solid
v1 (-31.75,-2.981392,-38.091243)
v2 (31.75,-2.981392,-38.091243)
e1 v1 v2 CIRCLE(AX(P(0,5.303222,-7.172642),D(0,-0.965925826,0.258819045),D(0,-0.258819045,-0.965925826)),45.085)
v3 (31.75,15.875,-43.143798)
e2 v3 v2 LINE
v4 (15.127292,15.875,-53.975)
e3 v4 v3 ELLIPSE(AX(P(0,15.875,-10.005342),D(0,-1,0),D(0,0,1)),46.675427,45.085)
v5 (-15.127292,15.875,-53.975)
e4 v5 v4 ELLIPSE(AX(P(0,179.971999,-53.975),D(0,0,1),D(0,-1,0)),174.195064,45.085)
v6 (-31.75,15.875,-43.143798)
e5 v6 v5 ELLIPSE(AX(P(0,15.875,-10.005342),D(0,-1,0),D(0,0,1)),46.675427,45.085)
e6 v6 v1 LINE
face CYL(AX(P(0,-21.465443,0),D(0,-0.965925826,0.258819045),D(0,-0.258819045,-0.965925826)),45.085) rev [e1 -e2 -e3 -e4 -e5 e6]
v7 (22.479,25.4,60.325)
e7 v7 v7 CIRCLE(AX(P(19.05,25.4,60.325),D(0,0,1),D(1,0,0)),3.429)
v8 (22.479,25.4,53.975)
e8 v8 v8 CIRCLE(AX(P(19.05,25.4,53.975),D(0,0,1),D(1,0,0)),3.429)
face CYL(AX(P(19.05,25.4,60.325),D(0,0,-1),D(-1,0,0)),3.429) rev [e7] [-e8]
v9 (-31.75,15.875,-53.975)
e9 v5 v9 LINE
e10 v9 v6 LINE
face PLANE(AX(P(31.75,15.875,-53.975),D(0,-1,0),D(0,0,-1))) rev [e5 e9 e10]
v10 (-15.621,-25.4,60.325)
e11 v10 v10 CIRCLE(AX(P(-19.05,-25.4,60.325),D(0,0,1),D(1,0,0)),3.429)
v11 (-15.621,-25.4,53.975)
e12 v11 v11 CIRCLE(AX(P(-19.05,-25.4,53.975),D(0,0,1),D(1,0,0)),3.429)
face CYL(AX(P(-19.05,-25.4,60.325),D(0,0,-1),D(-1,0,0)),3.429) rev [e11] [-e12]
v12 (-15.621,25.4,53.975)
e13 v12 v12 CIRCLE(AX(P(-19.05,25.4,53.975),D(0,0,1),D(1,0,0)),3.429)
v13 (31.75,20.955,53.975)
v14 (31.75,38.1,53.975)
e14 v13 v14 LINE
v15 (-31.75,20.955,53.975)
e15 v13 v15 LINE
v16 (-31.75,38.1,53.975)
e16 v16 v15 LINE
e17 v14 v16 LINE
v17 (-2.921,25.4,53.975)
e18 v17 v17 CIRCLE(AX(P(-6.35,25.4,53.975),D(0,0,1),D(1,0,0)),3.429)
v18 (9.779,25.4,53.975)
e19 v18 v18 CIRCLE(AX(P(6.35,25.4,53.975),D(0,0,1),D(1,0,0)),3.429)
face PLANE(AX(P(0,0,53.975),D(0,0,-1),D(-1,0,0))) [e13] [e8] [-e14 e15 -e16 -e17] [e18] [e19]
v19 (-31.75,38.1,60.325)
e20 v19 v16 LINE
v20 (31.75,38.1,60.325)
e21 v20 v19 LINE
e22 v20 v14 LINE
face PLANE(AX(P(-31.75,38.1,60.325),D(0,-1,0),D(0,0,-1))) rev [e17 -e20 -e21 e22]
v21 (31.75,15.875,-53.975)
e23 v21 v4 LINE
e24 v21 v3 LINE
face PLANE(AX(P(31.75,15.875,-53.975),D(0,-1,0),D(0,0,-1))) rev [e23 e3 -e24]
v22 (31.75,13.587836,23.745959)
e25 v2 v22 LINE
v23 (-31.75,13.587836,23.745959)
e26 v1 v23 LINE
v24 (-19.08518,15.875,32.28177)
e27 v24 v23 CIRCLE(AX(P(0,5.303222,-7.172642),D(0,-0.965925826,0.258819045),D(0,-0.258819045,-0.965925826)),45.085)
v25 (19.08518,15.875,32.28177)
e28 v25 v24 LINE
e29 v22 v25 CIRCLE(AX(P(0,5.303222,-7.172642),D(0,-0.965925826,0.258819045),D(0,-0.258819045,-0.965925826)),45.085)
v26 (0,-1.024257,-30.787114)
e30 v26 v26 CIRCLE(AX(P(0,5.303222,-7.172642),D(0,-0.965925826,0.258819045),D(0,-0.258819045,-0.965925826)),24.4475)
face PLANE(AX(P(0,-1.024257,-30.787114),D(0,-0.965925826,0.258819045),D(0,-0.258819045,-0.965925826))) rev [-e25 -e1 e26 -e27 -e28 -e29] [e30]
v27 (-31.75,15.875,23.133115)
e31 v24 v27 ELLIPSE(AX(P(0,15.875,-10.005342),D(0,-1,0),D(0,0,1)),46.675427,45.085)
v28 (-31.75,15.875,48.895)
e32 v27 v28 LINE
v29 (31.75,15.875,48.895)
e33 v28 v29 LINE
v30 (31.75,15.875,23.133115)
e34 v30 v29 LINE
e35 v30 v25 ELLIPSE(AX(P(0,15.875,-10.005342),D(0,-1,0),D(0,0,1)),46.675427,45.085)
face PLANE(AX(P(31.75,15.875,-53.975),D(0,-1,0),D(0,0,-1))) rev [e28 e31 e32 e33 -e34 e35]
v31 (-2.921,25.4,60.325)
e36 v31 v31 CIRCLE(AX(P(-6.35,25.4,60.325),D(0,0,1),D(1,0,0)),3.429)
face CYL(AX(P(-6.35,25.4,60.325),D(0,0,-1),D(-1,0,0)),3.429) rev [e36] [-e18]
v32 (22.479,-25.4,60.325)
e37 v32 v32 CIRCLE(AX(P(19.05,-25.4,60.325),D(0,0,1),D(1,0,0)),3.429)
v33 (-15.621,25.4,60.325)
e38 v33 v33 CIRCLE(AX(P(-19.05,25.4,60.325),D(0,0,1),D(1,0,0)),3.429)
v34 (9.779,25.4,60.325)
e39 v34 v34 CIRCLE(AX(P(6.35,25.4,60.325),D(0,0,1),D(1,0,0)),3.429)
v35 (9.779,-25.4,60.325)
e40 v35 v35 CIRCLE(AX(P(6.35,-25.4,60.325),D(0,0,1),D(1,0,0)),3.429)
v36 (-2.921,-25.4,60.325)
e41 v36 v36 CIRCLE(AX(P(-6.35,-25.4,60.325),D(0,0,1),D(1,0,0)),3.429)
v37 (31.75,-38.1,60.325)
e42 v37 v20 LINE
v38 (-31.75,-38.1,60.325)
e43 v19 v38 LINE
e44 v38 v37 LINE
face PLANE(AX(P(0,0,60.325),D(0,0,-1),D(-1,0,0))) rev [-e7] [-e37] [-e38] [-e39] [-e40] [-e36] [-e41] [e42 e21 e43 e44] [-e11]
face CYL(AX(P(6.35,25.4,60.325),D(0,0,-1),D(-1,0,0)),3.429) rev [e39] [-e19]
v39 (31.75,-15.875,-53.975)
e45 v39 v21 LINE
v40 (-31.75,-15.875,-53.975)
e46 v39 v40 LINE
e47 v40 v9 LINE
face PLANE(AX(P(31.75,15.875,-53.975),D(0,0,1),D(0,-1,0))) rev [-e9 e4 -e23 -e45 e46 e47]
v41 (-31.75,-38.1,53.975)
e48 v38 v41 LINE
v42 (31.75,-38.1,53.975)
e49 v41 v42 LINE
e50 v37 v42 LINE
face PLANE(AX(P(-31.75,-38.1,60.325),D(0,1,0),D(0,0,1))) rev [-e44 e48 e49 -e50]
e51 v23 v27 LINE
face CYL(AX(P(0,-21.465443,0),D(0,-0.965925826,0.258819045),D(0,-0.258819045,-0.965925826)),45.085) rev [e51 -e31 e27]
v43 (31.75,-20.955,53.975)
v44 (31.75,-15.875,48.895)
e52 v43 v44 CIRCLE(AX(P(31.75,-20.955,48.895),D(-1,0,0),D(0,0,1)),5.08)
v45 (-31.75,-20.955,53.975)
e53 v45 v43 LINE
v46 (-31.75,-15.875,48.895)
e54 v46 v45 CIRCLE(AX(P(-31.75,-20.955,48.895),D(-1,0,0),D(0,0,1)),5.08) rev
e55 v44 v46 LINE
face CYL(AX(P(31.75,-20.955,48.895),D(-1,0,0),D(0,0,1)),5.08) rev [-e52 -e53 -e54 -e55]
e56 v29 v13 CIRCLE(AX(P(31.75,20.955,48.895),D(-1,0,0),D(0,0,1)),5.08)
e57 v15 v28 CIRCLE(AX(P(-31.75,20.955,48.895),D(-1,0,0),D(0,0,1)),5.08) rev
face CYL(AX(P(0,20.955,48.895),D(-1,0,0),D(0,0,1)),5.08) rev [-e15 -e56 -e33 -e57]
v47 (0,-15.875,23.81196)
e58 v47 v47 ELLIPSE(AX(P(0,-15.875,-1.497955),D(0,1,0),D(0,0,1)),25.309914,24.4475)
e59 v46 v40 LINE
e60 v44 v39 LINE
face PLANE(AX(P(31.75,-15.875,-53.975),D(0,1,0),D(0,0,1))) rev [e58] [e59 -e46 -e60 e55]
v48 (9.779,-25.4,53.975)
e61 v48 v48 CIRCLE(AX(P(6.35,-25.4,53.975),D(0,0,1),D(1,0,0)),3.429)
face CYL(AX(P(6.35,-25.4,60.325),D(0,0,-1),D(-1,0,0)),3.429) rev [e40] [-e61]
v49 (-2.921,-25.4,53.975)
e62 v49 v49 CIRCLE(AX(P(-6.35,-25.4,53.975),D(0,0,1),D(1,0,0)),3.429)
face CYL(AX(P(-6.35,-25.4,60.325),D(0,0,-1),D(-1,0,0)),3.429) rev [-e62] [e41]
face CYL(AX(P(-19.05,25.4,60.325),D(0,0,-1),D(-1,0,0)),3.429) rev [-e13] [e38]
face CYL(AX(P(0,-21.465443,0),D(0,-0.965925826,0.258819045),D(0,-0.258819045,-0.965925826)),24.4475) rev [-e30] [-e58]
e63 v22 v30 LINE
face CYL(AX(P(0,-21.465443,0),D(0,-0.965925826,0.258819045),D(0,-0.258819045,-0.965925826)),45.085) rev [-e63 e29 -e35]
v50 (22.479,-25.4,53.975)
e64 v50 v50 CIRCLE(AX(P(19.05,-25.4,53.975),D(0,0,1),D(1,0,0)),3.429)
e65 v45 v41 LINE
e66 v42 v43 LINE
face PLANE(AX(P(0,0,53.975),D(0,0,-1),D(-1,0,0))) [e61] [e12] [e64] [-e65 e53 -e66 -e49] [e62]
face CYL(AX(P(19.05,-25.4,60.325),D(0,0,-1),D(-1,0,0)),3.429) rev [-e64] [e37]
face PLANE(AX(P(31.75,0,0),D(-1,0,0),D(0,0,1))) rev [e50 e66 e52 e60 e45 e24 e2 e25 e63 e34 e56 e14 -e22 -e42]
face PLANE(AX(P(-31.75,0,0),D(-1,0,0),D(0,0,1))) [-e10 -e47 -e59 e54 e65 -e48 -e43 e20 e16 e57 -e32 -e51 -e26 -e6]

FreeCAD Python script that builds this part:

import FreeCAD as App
import Part
import Sketcher
from FreeCAD import Vector
Q = App.Units.Quantity


def edges_at(feature, points):
    """Names of the edges that pass closest to the given points."""
    edges = feature.Shape.Edges
    near = lambda p: min(range(len(edges)), key=lambda i: edges[i].distToShape(Part.Vertex(*p))[0])
    return sorted({f"Edge{near(p) + 1}" for p in points})


def add_polygon(sketch, points):
    """Adds a closed chain of lines whose ends are joined by coincident constraints."""
    first, n = sketch.GeometryCount, len(points)
    for a, b in zip(points, points[1:] + points[:1]):
        sketch.addGeometry(Part.LineSegment(App.Vector(*a, 0), App.Vector(*b, 0)), False)
    for i in range(n):
        sketch.addConstraint(Sketcher.Constraint("Coincident", first + i, 2, first + (i + 1) % n, 1))

doc = App.newDocument("Part")
body = doc.addObject("PartDesign::Body", "Body")

# Sketch on YZ plane
sketch1 = body.newObject("Sketcher::SketchObject", "Sketch")
sketch1.AttachmentSupport = (doc.getObject("YZ_Plane"), [""])
sketch1.MapMode = "FlatFace"
add_polygon(sketch1, [(16, 54), (-16, 54), (-16, -54), (16, -54)])  # lines 0-3
sketch1.addConstraint([
    Sketcher.Constraint("Horizontal", 0),
    Sketcher.Constraint("Vertical", 1),
    Sketcher.Constraint("Horizontal", 2),
    Sketcher.Constraint("Vertical", 3),
    Sketcher.Constraint("Symmetric", 0, 2, 2, 2, -1, 1),
    Sketcher.Constraint("DistanceX", 0, 2, 0, 1, Q("1.25 in")),
    Sketcher.Constraint("DistanceY", 1, 2, 1, 1, Q("4.25 in")),
])
pad1 = body.newObject("PartDesign::Pad", "Pad")
pad1.Profile = sketch1
pad1.Length = Q("2.5 in")
pad1.Midplane = True

# Sketch on YZ plane
sketch2 = body.newObject("Sketcher::SketchObject", "Sketch001")
sketch2.AttachmentSupport = (doc.getObject("YZ_Plane"), [""])
sketch2.MapMode = "FlatFace"
add_polygon(sketch2, [(-35, -22), (-1, -31), (-6, -51), (26, -59), (38, -16), (-29, 2)])  # lines 0-5
sketch2.addGeometry(Part.LineSegment(Vector(-29, 2, 0), Vector(38, -16, 0)), True)  # axis
sketch2.addConstraint([
    Sketcher.Constraint("Coincident", 6, 1, 4, 2),
    Sketcher.Constraint("Coincident", 6, 2, 3, 2),
    Sketcher.Constraint("Perpendicular", 0, 1),
    Sketcher.Constraint("Perpendicular", 1, 2),
    Sketcher.Constraint("Perpendicular", 2, 3),
    Sketcher.Constraint("Perpendicular", 3, 4),
    Sketcher.Constraint("Perpendicular", 4, 5),
    Sketcher.Constraint("Angle", 0, Q("-15 deg")),
    Sketcher.Constraint("Distance", 1, Q("0.8125 in")),
    Sketcher.Constraint("Distance", 3, Q("1.775 in")),
    Sketcher.Constraint("DistanceX", 4, 2, -1, 1, Q("1.125 in")),
    Sketcher.Constraint("DistanceY", -1, 1, 4, 2, Q("0.075 in")),
    Sketcher.Constraint("DistanceY", 5, 2, 3, 2, Q("5.775298 mm")),
    Sketcher.Constraint("DistanceY", 1, 2, -1, 1, Q("50.721408 mm")),
])
groove = body.newObject("PartDesign::Groove", "Groove")
groove.Profile = sketch2
groove.ReferenceAxis = (sketch2, ["Axis0"])
groove.Angle = 360

# Sketch on XY plane
sketch3 = body.newObject("Sketcher::SketchObject", "Sketch002")
sketch3.AttachmentSupport = (doc.getObject("XY_Plane"), [""])
sketch3.MapMode = "FlatFace"
sketch3.AttachmentOffset = App.Placement(Vector(0, 0, 2.125 * 25.4), App.Rotation())
add_polygon(sketch3, [(-31.8, 38.1), (-31.8, -38.1), (31.8, -38.1), (31.8, 38.1)])  # lines 0-3
sketch3.addGeometry(Part.Circle(Vector(-19.1, -25.4, 0), Vector(0, 0, 1), 3.4), False)  # 4
sketch3.addGeometry(Part.Circle(Vector(-6.3, -25.4, 0), Vector(0, 0, 1), 3.4), False)  # 5
sketch3.addGeometry(Part.Circle(Vector(6.3, -25.4, 0), Vector(0, 0, 1), 3.4), False)  # 6
sketch3.addGeometry(Part.Circle(Vector(19.1, -25.4, 0), Vector(0, 0, 1), 3.4), False)  # 7
sketch3.addGeometry(Part.Circle(Vector(-19.1, 25.4, 0), Vector(0, 0, 1), 3.4), False)  # 8
sketch3.addGeometry(Part.Circle(Vector(-6.3, 25.4, 0), Vector(0, 0, 1), 3.4), False)  # 9
sketch3.addGeometry(Part.Circle(Vector(6.3, 25.4, 0), Vector(0, 0, 1), 3.4), False)  # 10
sketch3.addGeometry(Part.Circle(Vector(19.1, 25.4, 0), Vector(0, 0, 1), 3.4), False)  # 11
sketch3.addConstraint([
    Sketcher.Constraint("Vertical", 0),
    Sketcher.Constraint("Horizontal", 1),
    Sketcher.Constraint("Vertical", 2),
    Sketcher.Constraint("Horizontal", 3),
    Sketcher.Constraint("Equal", 4, 5),
    Sketcher.Constraint("Equal", 5, 6),
    Sketcher.Constraint("Equal", 6, 7),
    Sketcher.Constraint("Equal", 7, 8),
    Sketcher.Constraint("Equal", 8, 9),
    Sketcher.Constraint("Equal", 9, 10),
    Sketcher.Constraint("Equal", 10, 11),
    Sketcher.Constraint("Symmetric", 7, 3, 8, 3, -1, 1),
    Sketcher.Constraint("Symmetric", 6, 3, 9, 3, -1, 1),
    Sketcher.Constraint("Symmetric", 5, 3, 10, 3, -1, 1),
    Sketcher.Constraint("Symmetric", 4, 3, 11, 3, -1, 1),
    Sketcher.Constraint("Symmetric", 0, 2, 2, 2, -1, 1),
    Sketcher.Constraint("Symmetric", 5, 3, 6, 3, -2),
    Sketcher.Constraint("Symmetric", 4, 3, 7, 3, -2),
    Sketcher.Constraint("Horizontal", 4, 3, 5, 3),
    Sketcher.Constraint("Diameter", 4, Q("0.27 in")),
    Sketcher.Constraint("DistanceY", 0, 2, 0, 1, Q("3 in")),
    Sketcher.Constraint("DistanceX", 1, 1, 1, 2, Q("2.5 in")),
    Sketcher.Constraint("DistanceY", 4, 3, -1, 1, Q("1 in")),
    Sketcher.Constraint("DistanceX", 4, 3, 6, 3, Q("1 in")),
    Sketcher.Constraint("DistanceX", 0, 2, 5, 3, Q("1 in")),
])
pad2 = body.newObject("PartDesign::Pad", "Pad001")
pad2.Profile = sketch3
pad2.Length = Q("0.25 in")
doc.recompute()

fillet = body.newObject("PartDesign::Fillet", "Fillet")
fillet.Base = (pad2, edges_at(pad2, [(0, 15.875, 53.975), (0, -15.875, 53.975)]))
fillet.Radius = Q("0.2 in")

doc.recompute()
